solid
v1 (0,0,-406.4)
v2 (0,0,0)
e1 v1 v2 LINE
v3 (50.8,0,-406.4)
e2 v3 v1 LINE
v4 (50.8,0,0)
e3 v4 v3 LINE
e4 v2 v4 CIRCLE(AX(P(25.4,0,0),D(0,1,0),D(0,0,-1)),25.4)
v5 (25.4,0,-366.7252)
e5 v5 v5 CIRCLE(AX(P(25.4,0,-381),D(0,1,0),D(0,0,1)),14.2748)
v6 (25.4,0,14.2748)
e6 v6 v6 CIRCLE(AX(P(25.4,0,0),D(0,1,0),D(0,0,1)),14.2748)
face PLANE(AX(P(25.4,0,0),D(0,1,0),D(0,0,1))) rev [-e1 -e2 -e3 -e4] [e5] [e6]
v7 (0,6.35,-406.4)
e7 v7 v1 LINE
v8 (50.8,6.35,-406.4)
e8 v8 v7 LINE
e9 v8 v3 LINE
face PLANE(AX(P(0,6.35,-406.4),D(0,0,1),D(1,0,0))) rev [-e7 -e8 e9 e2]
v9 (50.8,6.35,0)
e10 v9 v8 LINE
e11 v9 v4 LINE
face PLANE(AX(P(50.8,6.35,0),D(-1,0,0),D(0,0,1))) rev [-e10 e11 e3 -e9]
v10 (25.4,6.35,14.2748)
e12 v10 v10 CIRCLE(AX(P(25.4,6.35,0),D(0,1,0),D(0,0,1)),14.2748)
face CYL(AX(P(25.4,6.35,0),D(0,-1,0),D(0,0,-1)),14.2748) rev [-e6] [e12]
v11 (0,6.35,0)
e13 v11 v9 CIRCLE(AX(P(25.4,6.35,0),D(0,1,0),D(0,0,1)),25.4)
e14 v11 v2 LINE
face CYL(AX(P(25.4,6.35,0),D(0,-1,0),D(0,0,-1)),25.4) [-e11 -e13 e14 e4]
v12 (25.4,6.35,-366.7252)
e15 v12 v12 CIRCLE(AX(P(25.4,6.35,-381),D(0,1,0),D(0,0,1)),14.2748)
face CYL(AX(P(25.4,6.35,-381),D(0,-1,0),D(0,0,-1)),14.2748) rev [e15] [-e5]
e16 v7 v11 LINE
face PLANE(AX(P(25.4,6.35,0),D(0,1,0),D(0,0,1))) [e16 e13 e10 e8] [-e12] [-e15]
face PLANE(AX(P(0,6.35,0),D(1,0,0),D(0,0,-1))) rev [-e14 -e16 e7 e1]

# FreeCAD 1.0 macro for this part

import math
import FreeCAD as App
import Part
import Sketcher
from FreeCAD import Vector
Q = App.Units.Quantity

doc = App.newDocument("Part")
body = doc.addObject("PartDesign::Body", "Body")

sketch1 = body.newObject("Sketcher::SketchObject", "Sketch")
sketch1.AttachmentSupport = (doc.getObject("XZ_Plane"), [""])
sketch1.MapMode = "FlatFace"
sketch1.addGeometry(Part.LineSegment(Vector(0, -406, 0), Vector(0, 0, 0)), False)
sketch1.addGeometry(Part.ArcOfCircle(Part.Circle(Vector(25, 0, 0), Vector(0, 0, 1), 25), math.radians(90), math.radians(180)), False)
sketch1.addGeometry(Part.ArcOfCircle(Part.Circle(Vector(25, 0, 0), Vector(0, 0, 1), 25), math.radians(0), math.radians(90)), False)
sketch1.addGeometry(Part.LineSegment(Vector(51, 0, 0), Vector(51, -406, 0)), False)
sketch1.addGeometry(Part.LineSegment(Vector(51, -406, 0), Vector(0, -406, 0)), False)
sketch1.addGeometry(Part.Circle(Vector(25, 0, 0), Vector(0, 0, 1), 14), False)
sketch1.addGeometry(Part.Circle(Vector(25, -381, 0), Vector(0, 0, 1), 14), False)
sketch1.addConstraint(Sketcher.Constraint("Tangent", 0, 2, 1, 2))
sketch1.addConstraint(Sketcher.Constraint("Tangent", 1, 1, 2, 2))
sketch1.addConstraint(Sketcher.Constraint("Tangent", 2, 1, 3, 1))
sketch1.addConstraint(Sketcher.Constraint("Coincident", 3, 2, 4, 1))
sketch1.addConstraint(Sketcher.Constraint("Coincident", 4, 2, 0, 1))
sketch1.addConstraint(Sketcher.Constraint("Vertical", 0))
sketch1.addConstraint(Sketcher.Constraint("Vertical", 3))
sketch1.addConstraint(Sketcher.Constraint("Horizontal", 4))
sketch1.addConstraint(Sketcher.Constraint("Coincident", 0, 2, -1, 1))
sketch1.addConstraint(Sketcher.Constraint("Coincident", 5, 3, 1, 3))
sketch1.addConstraint(Sketcher.Constraint("Equal", 1, 2))
sketch1.addConstraint(Sketcher.Constraint("Equal", 5, 6))
sketch1.addConstraint(Sketcher.Constraint("Vertical", 5, 3, 6, 3))
sketch1.addConstraint(Sketcher.Constraint("Vertical", 6, 3, 1, 1))
sketch1.addConstraint(Sketcher.Constraint("Radius", 1, Q("1 in")))
sketch1.addConstraint(Sketcher.Constraint("DistanceY", 0, 1, 0, 2, Q("16 in")))
sketch1.addConstraint(Sketcher.Constraint("Diameter", 5, Q("1.124 in")))
sketch1.addConstraint(Sketcher.Constraint("DistanceY", 6, 3, -1, 1, Q("15 in")))
pad1 = body.newObject("PartDesign::Pad", "Pad")
pad1.Profile = sketch1
pad1.Length = Q("0.25 in")
pad1.Reversed = True

doc.recompute()
